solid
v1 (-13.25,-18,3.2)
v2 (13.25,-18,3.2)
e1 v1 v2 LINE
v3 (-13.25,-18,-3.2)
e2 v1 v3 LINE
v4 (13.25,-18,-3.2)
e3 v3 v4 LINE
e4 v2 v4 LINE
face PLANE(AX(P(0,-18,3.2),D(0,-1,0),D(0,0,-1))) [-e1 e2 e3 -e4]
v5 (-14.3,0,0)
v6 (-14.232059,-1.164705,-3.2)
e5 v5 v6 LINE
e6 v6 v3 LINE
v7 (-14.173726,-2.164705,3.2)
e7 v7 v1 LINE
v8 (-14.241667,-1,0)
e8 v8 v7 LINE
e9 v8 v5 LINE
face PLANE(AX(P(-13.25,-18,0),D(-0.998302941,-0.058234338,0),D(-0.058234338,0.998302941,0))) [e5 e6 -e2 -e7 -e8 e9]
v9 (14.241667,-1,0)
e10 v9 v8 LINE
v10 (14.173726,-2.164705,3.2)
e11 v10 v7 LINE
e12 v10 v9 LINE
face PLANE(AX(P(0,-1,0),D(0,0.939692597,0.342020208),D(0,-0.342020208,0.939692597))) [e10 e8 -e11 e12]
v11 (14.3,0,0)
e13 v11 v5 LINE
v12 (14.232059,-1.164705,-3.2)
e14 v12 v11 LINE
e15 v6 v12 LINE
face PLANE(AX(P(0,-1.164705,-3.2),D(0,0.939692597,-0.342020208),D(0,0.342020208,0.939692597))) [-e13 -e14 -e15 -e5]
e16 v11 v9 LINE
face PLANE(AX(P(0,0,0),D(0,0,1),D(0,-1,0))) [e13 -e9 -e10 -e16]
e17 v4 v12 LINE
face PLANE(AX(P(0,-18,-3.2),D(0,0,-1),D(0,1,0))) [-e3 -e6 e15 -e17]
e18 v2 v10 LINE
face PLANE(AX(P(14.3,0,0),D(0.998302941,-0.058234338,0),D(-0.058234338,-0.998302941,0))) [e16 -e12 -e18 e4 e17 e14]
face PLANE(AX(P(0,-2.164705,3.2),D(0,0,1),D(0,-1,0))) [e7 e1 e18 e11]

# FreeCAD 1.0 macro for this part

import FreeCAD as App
import Part
import Sketcher
from FreeCAD import Vector
Q = App.Units.Quantity


def add_polygon(sketch, points):
    """Adds a closed chain of lines whose ends are joined by coincident constraints."""
    first, n = sketch.GeometryCount, len(points)
    for a, b in zip(points, points[1:] + points[:1]):
        sketch.addGeometry(Part.LineSegment(App.Vector(*a, 0), App.Vector(*b, 0)), False)
    for i in range(n):
        sketch.addConstraint(Sketcher.Constraint("Coincident", first + i, 2, first + (i + 1) % n, 1))

doc = App.newDocument("Part")
body = doc.addObject("PartDesign::Body", "Body")

# Sketch on YZ plane
sketch1 = body.newObject("Sketcher::SketchObject", "Sketch")
sketch1.AttachmentSupport = (doc.getObject("YZ_Plane"), [""])
sketch1.MapMode = "FlatFace"
add_polygon(sketch1, [(-2.164705, 3.2), (-18, 3.2), (-18, -3.2), (-1.164705, -3.2), (0, 0), (-1, 0)])  # lines 0-5
sketch1.addConstraint([
    Sketcher.Constraint("Horizontal", 0),
    Sketcher.Constraint("Vertical", 1),
    Sketcher.Constraint("Horizontal", 2),
    Sketcher.Constraint("Horizontal", 4),
    Sketcher.Constraint("Coincident", 3, 2, -1, 1),
    Sketcher.Constraint("Equal", 3, 5),
    Sketcher.Constraint("DistanceX", 4, 2, 4, 1, Q("1 mm")),
    Sketcher.Constraint("Angle", 3, Q("69.999996 deg")),
    Sketcher.Constraint("Angle", 5, Q("110.000004 deg")),
    Sketcher.Constraint("DistanceY", 1, 2, 1, 1, Q("6.4 mm")),
    Sketcher.Constraint("DistanceX", 0, 2, -1, 1, Q("18 mm")),
])
pad1 = body.newObject("PartDesign::Pad", "Pad")
pad1.Profile = sketch1
pad1.Type = "TwoLengths"
pad1.Length = 14.3
pad1.Length2 = 14.3

# Sketch on XY plane
sketch2 = body.newObject("Sketcher::SketchObject", "Sketch001")
sketch2.AttachmentSupport = (doc.getObject("XY_Plane"), [""])
sketch2.MapMode = "FlatFace"
add_polygon(sketch2, [(-13.25, -18), (-14.3, 0), (-17.080702, 0), (-17.080702, -21.785066), (17.080702, -21.785066), (17.080702, 0), (14.3, 0), (13.25, -18)])  # lines 0-7
sketch2.addConstraint([
    Sketcher.Constraint("Horizontal", 1),
    Sketcher.Constraint("Vertical", 2),
    Sketcher.Constraint("Horizontal", 3),
    Sketcher.Constraint("Vertical", 4),
    Sketcher.Constraint("Horizontal", 5),
    Sketcher.Constraint("Horizontal", 7),
    Sketcher.Constraint("Symmetric", 1, 2, 4, 2, -1, 1),
    Sketcher.Constraint("Symmetric", 0, 2, 5, 2, -2),
    Sketcher.Constraint("Equal", 0, 6),
    Sketcher.Constraint("DistanceX", 7, 2, 7, 1, Q("26.5 mm")),
    Sketcher.Constraint("DistanceY", 6, 2, -1, 1, Q("18 mm")),
    Sketcher.Constraint("DistanceX", 0, 2, -1, 1, Q("14.3 mm")),
    Sketcher.Constraint("DistanceX", 1, 2, 1, 1, Q("2.780702 mm")),
    Sketcher.Constraint("DistanceY", 2, 2, 2, 1, Q("21.785066 mm")),
])
pocket1 = body.newObject("PartDesign::Pocket", "Pocket")
pocket1.Profile = sketch2
pocket1.Type = "ThroughAll"
pocket1.Midplane = True

doc.recompute()
